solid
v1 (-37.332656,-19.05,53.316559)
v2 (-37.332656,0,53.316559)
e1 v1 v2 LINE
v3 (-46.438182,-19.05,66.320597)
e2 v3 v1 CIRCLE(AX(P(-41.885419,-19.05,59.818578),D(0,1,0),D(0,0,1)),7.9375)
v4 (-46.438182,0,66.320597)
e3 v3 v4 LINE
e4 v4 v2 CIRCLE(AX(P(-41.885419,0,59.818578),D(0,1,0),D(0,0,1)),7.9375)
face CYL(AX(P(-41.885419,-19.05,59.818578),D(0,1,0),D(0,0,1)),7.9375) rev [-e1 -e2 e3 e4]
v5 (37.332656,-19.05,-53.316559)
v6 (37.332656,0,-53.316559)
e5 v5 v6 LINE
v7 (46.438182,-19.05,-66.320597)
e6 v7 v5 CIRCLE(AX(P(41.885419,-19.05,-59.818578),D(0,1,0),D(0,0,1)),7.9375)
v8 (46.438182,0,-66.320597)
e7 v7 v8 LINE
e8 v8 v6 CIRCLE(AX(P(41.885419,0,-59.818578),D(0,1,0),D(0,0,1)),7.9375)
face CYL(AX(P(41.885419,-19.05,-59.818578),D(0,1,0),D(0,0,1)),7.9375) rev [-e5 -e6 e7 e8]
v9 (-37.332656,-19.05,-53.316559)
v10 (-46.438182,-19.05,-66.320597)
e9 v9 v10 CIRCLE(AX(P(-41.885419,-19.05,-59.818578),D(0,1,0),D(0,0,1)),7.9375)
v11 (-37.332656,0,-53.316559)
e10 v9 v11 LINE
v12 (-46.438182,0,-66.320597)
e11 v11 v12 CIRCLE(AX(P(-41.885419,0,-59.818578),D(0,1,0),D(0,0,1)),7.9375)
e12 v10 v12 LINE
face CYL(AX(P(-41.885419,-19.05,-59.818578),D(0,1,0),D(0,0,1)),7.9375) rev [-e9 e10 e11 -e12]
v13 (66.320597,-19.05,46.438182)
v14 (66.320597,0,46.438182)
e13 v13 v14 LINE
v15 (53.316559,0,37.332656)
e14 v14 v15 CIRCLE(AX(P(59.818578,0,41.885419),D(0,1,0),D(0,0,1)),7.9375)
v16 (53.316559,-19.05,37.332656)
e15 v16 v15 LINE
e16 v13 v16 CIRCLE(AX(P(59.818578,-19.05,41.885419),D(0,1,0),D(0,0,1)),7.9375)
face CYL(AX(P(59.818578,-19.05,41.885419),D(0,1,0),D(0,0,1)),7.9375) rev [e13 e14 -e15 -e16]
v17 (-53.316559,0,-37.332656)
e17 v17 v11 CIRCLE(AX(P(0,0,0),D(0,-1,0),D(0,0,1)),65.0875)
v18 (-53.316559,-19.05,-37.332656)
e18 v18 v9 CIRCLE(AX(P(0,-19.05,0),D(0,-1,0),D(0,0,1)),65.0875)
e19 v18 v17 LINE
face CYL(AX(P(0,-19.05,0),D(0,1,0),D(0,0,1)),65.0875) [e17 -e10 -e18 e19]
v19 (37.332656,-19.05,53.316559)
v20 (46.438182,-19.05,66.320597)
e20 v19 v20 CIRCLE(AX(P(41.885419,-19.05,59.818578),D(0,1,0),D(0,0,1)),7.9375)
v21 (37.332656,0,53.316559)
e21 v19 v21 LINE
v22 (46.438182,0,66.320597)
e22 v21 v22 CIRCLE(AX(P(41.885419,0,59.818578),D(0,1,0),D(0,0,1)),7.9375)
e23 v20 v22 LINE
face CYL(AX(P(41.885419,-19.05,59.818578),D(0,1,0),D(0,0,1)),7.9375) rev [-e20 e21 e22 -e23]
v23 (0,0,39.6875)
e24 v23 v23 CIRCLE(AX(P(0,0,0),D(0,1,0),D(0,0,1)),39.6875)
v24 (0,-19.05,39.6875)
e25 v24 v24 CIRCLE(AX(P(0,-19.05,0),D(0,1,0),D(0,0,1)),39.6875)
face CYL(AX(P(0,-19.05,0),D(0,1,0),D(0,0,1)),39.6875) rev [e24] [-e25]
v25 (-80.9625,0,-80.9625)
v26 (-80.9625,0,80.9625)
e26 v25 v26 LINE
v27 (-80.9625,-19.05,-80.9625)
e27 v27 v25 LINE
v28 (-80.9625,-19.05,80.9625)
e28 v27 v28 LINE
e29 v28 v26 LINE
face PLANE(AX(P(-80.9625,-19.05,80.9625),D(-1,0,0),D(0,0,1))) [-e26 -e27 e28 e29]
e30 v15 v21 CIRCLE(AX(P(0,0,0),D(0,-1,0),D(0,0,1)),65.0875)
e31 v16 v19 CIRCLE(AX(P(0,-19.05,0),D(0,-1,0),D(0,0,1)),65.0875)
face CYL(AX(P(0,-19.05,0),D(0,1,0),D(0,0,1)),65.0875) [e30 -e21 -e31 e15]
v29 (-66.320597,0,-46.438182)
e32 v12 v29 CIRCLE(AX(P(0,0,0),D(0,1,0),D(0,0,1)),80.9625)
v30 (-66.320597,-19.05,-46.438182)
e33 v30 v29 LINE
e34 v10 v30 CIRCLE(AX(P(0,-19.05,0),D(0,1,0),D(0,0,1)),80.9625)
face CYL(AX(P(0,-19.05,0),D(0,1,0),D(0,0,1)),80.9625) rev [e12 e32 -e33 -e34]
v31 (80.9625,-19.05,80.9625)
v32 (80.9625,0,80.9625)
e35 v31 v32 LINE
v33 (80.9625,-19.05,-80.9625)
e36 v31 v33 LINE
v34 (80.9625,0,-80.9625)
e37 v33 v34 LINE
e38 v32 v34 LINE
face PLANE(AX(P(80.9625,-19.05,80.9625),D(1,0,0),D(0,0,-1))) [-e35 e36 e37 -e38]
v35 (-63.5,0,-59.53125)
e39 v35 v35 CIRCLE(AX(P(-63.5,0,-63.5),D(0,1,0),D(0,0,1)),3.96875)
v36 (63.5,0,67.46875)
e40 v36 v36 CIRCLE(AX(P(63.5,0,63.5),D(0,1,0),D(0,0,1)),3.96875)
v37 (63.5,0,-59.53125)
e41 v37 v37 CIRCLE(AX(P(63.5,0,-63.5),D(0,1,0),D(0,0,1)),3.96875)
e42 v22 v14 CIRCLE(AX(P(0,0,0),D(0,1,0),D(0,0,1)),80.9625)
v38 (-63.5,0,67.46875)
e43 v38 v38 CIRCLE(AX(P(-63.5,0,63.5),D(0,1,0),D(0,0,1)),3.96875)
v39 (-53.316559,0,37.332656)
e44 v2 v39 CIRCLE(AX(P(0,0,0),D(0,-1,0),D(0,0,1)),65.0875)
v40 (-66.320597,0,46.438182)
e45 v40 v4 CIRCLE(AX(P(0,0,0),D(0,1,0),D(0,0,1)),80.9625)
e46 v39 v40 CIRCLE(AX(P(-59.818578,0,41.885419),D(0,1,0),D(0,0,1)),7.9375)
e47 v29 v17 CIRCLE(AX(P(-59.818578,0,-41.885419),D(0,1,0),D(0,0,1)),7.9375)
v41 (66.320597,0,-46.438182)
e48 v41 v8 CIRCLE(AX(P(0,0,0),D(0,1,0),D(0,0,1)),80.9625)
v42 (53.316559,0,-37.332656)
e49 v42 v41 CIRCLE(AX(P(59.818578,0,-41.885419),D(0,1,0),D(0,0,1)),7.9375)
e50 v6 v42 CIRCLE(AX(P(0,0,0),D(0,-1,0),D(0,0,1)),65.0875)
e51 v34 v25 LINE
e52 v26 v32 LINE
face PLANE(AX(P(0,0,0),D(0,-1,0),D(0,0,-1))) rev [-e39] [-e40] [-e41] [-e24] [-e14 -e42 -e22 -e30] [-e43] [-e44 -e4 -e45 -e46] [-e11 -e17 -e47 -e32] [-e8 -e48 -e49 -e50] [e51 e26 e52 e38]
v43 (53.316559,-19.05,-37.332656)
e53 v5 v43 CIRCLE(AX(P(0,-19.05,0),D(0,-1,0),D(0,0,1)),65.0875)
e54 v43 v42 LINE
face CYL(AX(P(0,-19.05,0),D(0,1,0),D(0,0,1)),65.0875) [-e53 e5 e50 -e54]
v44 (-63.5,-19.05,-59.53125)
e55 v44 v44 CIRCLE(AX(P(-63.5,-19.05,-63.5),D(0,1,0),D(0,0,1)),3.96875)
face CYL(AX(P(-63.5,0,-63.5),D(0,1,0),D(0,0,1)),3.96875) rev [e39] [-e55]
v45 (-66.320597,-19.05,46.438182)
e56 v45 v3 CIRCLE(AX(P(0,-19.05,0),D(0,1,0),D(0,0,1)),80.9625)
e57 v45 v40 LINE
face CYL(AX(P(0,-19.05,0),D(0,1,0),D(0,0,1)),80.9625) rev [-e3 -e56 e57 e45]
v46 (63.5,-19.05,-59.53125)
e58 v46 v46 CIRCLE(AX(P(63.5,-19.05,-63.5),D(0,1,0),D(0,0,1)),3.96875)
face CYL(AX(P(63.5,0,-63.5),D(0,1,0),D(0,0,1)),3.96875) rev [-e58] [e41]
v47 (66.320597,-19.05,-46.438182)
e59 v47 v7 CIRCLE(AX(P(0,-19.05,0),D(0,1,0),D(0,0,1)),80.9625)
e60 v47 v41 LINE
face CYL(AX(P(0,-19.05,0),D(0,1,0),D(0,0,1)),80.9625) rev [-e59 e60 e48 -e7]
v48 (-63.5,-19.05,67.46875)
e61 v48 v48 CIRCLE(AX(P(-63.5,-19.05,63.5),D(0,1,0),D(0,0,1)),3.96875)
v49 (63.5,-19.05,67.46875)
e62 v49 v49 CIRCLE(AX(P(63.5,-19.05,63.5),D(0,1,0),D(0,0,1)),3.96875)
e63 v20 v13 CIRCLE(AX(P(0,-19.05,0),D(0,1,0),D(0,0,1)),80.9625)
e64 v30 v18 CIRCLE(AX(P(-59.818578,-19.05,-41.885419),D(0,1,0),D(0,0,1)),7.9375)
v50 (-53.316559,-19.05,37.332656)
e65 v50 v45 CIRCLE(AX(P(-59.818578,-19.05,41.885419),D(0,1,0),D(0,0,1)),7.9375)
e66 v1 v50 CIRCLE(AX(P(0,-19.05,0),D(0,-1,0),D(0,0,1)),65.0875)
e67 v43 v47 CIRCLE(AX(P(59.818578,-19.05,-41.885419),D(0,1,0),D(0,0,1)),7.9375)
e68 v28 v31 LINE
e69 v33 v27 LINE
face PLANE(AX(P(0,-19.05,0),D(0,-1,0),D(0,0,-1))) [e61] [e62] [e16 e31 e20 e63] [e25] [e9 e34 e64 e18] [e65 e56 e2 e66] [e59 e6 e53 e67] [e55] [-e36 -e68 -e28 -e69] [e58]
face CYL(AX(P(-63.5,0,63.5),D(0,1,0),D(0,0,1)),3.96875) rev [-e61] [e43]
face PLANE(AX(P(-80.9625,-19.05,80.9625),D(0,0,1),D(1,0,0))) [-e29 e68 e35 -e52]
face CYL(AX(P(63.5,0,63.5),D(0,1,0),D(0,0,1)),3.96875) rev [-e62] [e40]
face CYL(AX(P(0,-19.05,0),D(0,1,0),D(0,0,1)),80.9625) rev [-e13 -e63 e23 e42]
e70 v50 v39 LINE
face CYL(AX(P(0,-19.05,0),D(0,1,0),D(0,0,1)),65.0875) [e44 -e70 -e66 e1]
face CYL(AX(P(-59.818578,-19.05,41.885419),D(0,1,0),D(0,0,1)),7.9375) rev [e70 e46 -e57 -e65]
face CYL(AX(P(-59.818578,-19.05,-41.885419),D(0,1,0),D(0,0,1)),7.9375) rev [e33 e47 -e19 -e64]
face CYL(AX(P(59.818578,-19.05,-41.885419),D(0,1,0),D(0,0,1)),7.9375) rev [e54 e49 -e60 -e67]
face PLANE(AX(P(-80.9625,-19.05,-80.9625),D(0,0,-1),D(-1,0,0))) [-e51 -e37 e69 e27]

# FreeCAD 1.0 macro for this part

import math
import FreeCAD as App
import Part
import Sketcher
from FreeCAD import Vector
Q = App.Units.Quantity

doc = App.newDocument("Part")
body = doc.addObject("PartDesign::Body", "Body")

# Sketch on XZ plane
sketch1 = body.newObject("Sketcher::SketchObject", "Sketch")
sketch1.AttachmentSupport = (doc.getObject("XZ_Plane"), [""])
sketch1.MapMode = "FlatFace"
sketch1.addGeometry([
    Part.LineSegment(Vector(-81, -81, 0), Vector(-81, 81, 0)),  # 0
    Part.LineSegment(Vector(-81, 81, 0), Vector(81, 81, 0)),  # 1
    Part.LineSegment(Vector(81, 81, 0), Vector(81, -81, 0)),  # 2
    Part.LineSegment(Vector(81, -81, 0), Vector(-81, -81, 0)),  # 3
    Part.ArcOfCircle(Part.Circle(Vector(0, 0, 0), Vector(0, 0, 1), 81), math.radians(125), math.radians(145)),  # 4
    Part.ArcOfCircle(Part.Circle(Vector(-60, 42, 0), Vector(0, 0, 1), 8), math.radians(145), math.radians(325)),  # 5
    Part.ArcOfCircle(Part.Circle(Vector(0, 0, 0), Vector(0, 0, 1), 65), math.radians(125), math.radians(145)),  # 6
    Part.ArcOfCircle(Part.Circle(Vector(-42, 60, 0), Vector(0, 0, 1), 8), math.radians(-55), math.radians(125)),  # 7
    Part.ArcOfCircle(Part.Circle(Vector(0, 0, 0), Vector(0, 0, 1), 81), math.radians(35), math.radians(55)),  # 8
    Part.ArcOfCircle(Part.Circle(Vector(42, 60, 0), Vector(0, 0, 1), 8), math.radians(55), math.radians(235)),  # 9
    Part.ArcOfCircle(Part.Circle(Vector(0, 0, 0), Vector(0, 0, 1), 65), math.radians(35), math.radians(55)),  # 10
    Part.ArcOfCircle(Part.Circle(Vector(60, 42, 0), Vector(0, 0, 1), 8), math.radians(-145), math.radians(35)),  # 11
    Part.ArcOfCircle(Part.Circle(Vector(0, 0, 0), Vector(0, 0, 1), 81), math.radians(-145), math.radians(-125)),  # 12
    Part.ArcOfCircle(Part.Circle(Vector(-42, -60, 0), Vector(0, 0, 1), 8), math.radians(-125), math.radians(55)),  # 13
    Part.ArcOfCircle(Part.Circle(Vector(0, 0, 0), Vector(0, 0, 1), 65), math.radians(-145), math.radians(-125)),  # 14
    Part.ArcOfCircle(Part.Circle(Vector(-60, -42, 0), Vector(0, 0, 1), 8), math.radians(35), math.radians(215)),  # 15
    Part.Circle(Vector(0, 0, 0), Vector(0, 0, 1), 40),  # 16
    Part.ArcOfCircle(Part.Circle(Vector(0, 0, 0), Vector(0, 0, 1), 81), math.radians(-55), math.radians(-35)),  # 17
    Part.ArcOfCircle(Part.Circle(Vector(60, -42, 0), Vector(0, 0, 1), 8), math.radians(-35), math.radians(145)),  # 18
    Part.ArcOfCircle(Part.Circle(Vector(0, 0, 0), Vector(0, 0, 1), 65), math.radians(-55), math.radians(-35)),  # 19
    Part.ArcOfCircle(Part.Circle(Vector(42, -60, 0), Vector(0, 0, 1), 8), math.radians(125), math.radians(305)),  # 20
], False)
sketch1.addConstraint([
    Sketcher.Constraint("Coincident", 0, 2, 1, 1),
    Sketcher.Constraint("Coincident", 1, 2, 2, 1),
    Sketcher.Constraint("Coincident", 2, 2, 3, 1),
    Sketcher.Constraint("Coincident", 3, 2, 0, 1),
    Sketcher.Constraint("Tangent", 4, 2, 5, 1),
    Sketcher.Constraint("Tangent", 5, 2, 6, 2),
    Sketcher.Constraint("Tangent", 6, 1, 7, 1),
    Sketcher.Constraint("Tangent", 7, 2, 4, 1),
    Sketcher.Constraint("Tangent", 8, 2, 9, 1),
    Sketcher.Constraint("Tangent", 9, 2, 10, 2),
    Sketcher.Constraint("Tangent", 10, 1, 11, 1),
    Sketcher.Constraint("Tangent", 11, 2, 8, 1),
    Sketcher.Constraint("Tangent", 12, 2, 13, 1),
    Sketcher.Constraint("Tangent", 13, 2, 14, 2),
    Sketcher.Constraint("Tangent", 14, 1, 15, 1),
    Sketcher.Constraint("Tangent", 15, 2, 12, 1),
    Sketcher.Constraint("Tangent", 17, 2, 18, 1),
    Sketcher.Constraint("Tangent", 18, 2, 19, 2),
    Sketcher.Constraint("Tangent", 19, 1, 20, 1),
    Sketcher.Constraint("Tangent", 20, 2, 17, 1),
    Sketcher.Constraint("Vertical", 0),
    Sketcher.Constraint("Horizontal", 1),
    Sketcher.Constraint("Vertical", 2),
    Sketcher.Constraint("Horizontal", 3),
    Sketcher.Constraint("Coincident", 4, 3, -1, 1),
    Sketcher.Constraint("Coincident", 6, 3, -1, 1),
    Sketcher.Constraint("Coincident", 8, 3, -1, 1),
    Sketcher.Constraint("Coincident", 10, 3, -1, 1),
    Sketcher.Constraint("Coincident", 12, 3, -1, 1),
    Sketcher.Constraint("Coincident", 14, 3, -1, 1),
    Sketcher.Constraint("Coincident", 16, 3, -1, 1),
    Sketcher.Constraint("Coincident", 17, 3, -1, 1),
    Sketcher.Constraint("Coincident", 19, 3, -1, 1),
    Sketcher.Constraint("Equal", 4, 8),
    Sketcher.Constraint("Equal", 7, 9),
    Sketcher.Constraint("Equal", 8, 12),
    Sketcher.Constraint("Equal", 11, 13),
    Sketcher.Constraint("Equal", 12, 17),
    Sketcher.Constraint("Equal", 15, 18),
    Sketcher.Constraint("Symmetric", 0, 2, 2, 2, -1, 1),
    Sketcher.Constraint("Horizontal", 7, 3, 9, 3),
    Sketcher.Constraint("Horizontal", 5, 3, 11, 3),
    Sketcher.Constraint("Horizontal", 15, 3, 18, 3),
    Sketcher.Constraint("Horizontal", 13, 3, 20, 3),
    Sketcher.Constraint("Vertical", 7, 3, 13, 3),
    Sketcher.Constraint("Vertical", 5, 3, 15, 3),
    Sketcher.Constraint("Equal", 3, 0),
    Sketcher.Constraint("Diameter", 16, Q("3.125 in")),
    Sketcher.Constraint("Radius", 4, Q("3.1875 in")),
    Sketcher.Constraint("Radius", 5, Q("0.3125 in")),
    Sketcher.Constraint("DistanceX", 1, 1, 1, 2, Q("6.375 in")),
    Sketcher.Constraint("DistanceX", 5, 3, -1, 1, 59.818578),
    Sketcher.Constraint("DistanceX", 7, 3, -1, 1, 41.885419),
])
pad1 = body.newObject("PartDesign::Pad", "Pad")
pad1.Profile = sketch1
pad1.Length = Q("0.75 in")

# Sketch on XZ plane
sketch2 = body.newObject("Sketcher::SketchObject", "Sketch001")
sketch2.AttachmentSupport = (doc.getObject("XZ_Plane"), [""])
sketch2.MapMode = "FlatFace"
sketch2.addGeometry([
    Part.Circle(Vector(-63.5, -63.5, 0), Vector(0, 0, 1), 4),
    Part.Circle(Vector(63.5, -63.5, 0), Vector(0, 0, 1), 4),
    Part.Circle(Vector(-63.5, 63.5, 0), Vector(0, 0, 1), 4),
    Part.Circle(Vector(63.5, 63.5, 0), Vector(0, 0, 1), 4),
], False)
sketch2.addConstraint([
    Sketcher.Constraint("Equal", 0, 1),
    Sketcher.Constraint("Equal", 1, 2),
    Sketcher.Constraint("Equal", 2, 3),
    Sketcher.Constraint("Symmetric", 1, 3, 2, 3, -1, 1),
    Sketcher.Constraint("Symmetric", 0, 3, 3, 3, -1, 1),
    Sketcher.Constraint("Symmetric", 0, 3, 1, 3, -2),
    Sketcher.Constraint("Diameter", 0, Q("0.3125 in")),
    Sketcher.Constraint("DistanceX", 0, 3, 1, 3, Q("5 in")),
    Sketcher.Constraint("DistanceY", 0, 3, 2, 3, Q("5 in")),
])
doc.recompute()
hole = body.newObject("PartDesign::Hole", "Hole")
hole.Profile = sketch2
hole.ThreadType = "None"
hole.Diameter = Q("0.3125 in")
hole.DepthType = "ThroughAll"
hole.Reversed = True

doc.recompute()
